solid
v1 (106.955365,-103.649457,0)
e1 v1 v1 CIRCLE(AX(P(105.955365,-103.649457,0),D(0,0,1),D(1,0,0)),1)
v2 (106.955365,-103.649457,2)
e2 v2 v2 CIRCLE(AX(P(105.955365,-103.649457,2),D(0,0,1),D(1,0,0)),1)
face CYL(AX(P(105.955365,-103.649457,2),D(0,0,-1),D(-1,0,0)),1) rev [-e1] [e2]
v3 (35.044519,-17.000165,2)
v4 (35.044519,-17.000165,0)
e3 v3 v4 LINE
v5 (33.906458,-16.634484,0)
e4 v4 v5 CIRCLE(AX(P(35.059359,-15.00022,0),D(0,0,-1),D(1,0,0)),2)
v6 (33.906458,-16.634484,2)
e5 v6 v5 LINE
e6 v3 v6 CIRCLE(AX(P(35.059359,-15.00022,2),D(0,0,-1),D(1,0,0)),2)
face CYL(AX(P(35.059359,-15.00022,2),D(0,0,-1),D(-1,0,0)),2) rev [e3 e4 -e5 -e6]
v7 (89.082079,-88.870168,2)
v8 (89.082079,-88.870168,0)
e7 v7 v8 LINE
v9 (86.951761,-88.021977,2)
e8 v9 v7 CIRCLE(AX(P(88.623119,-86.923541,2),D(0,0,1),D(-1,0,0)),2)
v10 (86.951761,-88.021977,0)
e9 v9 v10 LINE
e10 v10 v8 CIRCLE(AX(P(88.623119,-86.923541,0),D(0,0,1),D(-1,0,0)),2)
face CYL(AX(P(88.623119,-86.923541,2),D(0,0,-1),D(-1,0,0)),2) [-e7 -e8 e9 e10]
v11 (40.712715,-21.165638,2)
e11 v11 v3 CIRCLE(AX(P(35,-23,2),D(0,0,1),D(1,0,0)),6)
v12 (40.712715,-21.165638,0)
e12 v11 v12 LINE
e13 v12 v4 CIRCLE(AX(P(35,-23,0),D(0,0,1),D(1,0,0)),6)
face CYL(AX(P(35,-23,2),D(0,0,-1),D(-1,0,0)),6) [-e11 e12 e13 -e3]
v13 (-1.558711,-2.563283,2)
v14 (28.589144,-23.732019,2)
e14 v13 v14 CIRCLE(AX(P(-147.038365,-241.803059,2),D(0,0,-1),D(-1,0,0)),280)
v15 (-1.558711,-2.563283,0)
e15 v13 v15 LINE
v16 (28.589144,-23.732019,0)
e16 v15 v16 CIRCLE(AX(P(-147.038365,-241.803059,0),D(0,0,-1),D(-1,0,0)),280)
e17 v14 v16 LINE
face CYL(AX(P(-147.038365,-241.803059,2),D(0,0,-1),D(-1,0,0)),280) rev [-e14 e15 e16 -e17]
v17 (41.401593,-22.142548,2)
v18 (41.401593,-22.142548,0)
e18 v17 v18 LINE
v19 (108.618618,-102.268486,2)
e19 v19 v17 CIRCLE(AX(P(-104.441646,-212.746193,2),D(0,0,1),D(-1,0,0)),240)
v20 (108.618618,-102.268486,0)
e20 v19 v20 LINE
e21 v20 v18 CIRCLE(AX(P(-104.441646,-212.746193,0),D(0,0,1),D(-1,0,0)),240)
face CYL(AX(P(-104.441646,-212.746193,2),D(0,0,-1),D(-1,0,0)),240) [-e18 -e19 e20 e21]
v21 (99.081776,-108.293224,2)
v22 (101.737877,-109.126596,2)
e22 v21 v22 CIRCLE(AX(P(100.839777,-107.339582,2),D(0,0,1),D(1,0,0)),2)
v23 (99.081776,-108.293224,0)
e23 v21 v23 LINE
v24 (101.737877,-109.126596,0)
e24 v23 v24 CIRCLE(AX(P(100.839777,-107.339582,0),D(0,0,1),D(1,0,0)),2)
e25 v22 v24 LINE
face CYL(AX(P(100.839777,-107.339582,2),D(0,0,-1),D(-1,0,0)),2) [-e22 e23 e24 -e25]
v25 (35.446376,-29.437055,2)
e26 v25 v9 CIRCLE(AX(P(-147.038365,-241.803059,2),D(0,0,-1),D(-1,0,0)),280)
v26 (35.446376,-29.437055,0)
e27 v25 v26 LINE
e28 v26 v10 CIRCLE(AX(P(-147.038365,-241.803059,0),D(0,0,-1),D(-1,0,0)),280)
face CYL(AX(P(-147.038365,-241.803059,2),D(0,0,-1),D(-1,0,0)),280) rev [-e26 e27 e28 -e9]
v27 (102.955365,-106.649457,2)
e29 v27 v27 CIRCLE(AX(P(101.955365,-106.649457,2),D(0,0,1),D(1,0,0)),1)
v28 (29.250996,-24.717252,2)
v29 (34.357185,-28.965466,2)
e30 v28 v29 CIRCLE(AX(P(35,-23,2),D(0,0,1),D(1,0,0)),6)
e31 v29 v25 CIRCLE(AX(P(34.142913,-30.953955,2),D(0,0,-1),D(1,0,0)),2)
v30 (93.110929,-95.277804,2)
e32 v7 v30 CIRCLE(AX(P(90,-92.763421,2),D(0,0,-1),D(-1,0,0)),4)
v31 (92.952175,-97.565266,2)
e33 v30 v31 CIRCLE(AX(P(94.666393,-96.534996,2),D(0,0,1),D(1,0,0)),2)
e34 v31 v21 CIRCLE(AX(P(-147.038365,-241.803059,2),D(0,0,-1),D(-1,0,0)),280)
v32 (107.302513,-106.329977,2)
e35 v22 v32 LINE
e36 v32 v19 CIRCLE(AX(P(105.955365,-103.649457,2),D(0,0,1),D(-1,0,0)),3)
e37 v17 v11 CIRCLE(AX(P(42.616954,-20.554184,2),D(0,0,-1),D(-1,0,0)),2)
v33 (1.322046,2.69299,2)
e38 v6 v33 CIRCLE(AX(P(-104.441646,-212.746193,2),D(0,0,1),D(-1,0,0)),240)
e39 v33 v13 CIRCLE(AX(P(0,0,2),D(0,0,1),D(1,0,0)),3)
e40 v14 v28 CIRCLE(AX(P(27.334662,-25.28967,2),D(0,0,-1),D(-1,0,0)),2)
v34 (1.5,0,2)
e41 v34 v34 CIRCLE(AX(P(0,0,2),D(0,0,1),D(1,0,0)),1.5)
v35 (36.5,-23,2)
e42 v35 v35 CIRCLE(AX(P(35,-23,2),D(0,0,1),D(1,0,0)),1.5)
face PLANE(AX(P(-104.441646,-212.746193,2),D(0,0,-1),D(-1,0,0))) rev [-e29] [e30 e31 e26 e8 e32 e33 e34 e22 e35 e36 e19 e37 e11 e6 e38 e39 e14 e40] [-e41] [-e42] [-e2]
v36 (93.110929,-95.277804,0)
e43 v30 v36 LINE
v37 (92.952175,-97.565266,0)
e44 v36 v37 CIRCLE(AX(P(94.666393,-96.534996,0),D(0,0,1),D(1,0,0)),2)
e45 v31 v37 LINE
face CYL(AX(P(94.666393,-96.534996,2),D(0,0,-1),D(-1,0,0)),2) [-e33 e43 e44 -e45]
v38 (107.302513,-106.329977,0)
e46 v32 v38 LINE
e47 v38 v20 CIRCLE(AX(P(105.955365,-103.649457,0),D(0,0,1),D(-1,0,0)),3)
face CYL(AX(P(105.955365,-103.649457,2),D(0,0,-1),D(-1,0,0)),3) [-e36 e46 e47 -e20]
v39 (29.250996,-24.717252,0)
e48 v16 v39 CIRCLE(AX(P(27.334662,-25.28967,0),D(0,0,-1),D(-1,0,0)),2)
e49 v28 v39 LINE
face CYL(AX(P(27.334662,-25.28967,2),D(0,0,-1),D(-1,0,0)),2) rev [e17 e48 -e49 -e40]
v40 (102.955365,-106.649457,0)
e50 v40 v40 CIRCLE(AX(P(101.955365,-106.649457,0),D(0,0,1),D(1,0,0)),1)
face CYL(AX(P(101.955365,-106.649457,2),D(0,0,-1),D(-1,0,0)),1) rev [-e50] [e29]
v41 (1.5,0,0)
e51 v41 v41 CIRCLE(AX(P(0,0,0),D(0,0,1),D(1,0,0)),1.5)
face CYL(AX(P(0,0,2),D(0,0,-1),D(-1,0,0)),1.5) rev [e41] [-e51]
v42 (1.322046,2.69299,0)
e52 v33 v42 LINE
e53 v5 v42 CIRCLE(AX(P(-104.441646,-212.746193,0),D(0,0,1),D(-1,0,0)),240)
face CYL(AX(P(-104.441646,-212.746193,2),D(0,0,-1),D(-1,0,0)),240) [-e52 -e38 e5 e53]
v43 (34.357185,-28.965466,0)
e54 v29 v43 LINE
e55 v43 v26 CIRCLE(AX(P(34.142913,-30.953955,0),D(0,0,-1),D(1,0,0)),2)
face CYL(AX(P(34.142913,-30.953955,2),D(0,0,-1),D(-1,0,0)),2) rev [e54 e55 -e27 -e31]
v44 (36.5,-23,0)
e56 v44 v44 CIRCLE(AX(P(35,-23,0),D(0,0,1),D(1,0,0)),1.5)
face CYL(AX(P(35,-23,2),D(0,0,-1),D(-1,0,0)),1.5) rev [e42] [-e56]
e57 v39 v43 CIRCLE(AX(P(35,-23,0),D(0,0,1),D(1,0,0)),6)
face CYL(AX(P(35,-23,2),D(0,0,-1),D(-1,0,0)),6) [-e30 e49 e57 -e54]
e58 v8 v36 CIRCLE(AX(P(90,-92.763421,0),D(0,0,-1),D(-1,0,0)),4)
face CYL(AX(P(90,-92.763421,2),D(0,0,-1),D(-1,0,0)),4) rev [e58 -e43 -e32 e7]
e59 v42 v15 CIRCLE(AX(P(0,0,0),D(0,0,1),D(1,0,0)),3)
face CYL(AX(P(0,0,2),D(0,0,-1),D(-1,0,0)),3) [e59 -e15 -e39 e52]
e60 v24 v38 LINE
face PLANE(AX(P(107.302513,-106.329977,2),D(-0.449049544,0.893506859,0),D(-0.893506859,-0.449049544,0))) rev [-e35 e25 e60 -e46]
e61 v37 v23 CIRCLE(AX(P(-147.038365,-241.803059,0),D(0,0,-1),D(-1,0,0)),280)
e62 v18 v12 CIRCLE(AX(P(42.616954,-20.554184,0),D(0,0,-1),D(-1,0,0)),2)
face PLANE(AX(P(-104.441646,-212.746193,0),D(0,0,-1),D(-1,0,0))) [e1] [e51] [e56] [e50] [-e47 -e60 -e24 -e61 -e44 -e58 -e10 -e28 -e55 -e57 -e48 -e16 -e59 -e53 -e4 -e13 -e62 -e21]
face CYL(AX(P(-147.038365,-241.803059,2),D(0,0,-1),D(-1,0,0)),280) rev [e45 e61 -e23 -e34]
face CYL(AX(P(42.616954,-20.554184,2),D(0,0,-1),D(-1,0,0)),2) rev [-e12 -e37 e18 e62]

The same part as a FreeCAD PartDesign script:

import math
import FreeCAD as App
import Part
import Sketcher

V = App.Vector

doc = App.newDocument("Part")
params = doc.addObject("Spreadsheet::Sheet", "Params")
for row, (alias, value) in enumerate([
    ("sketch1_diameter", "2 mm"),
    ("sketch1_diameter2", "3 mm"),
    ("sketch1_radius", "3 mm"),
    ("sketch1_radius2", "240 mm"),
    ("sketch1_radius3", "2 mm"),
    ("pad1_length", "2 mm"),
], start=1):
    params.set(f"A{row}", alias)
    params.set(f"B{row}", "=" + value)
    params.setAlias(f"B{row}", alias)

body = doc.addObject("PartDesign::Body", "Body")

# Sketch on XY plane
sketch1 = doc.addObject("Sketcher::SketchObject", "Sketch")
body.addObject(sketch1)
sketch1.AttachmentSupport = (doc.XY_Plane, [""])
sketch1.MapMode = "FlatFace"
sketch1.addGeometry([
    Part.LineSegment(V(101.7, -109.1, 0), V(107.3, -106.3, 0)),  # 0
    Part.ArcOfCircle(Part.Circle(V(106, -103.6, 0), V(0, 0, 1), 3), math.radians(-63), math.radians(27)),  # 1
    Part.ArcOfCircle(Part.Circle(V(-104.4, -212.7, 0), V(0, 0, 1), 240), math.radians(27), math.radians(53)),  # 2
    Part.ArcOfCircle(Part.Circle(V(42.6, -20.6, 0), V(0, 0, 1), 2), math.radians(-162), math.radians(-127)),  # 3
    Part.ArcOfCircle(Part.Circle(V(35, -23, 0), V(0, 0, 1), 6), math.radians(18), math.radians(90)),  # 4
    Part.ArcOfCircle(Part.Circle(V(35.1, -15, 0), V(0, 0, 1), 2), math.radians(-125), math.radians(-90)),  # 5
    Part.ArcOfCircle(Part.Circle(V(-104.4, -212.7, 0), V(0, 0, 1), 240), math.radians(54.8), math.radians(63.85)),  # 6
    Part.ArcOfCircle(Part.Circle(V(0, 0, 0), V(0, 0, 1), 3), math.radians(64), math.radians(239)),  # 7
    Part.ArcOfCircle(Part.Circle(V(-147, -241.8, 0), V(0, 0, 1), 280), math.radians(51.15), math.radians(58.7)),  # 8
    Part.ArcOfCircle(Part.Circle(V(27.3, -25.3, 0), V(0, 0, 1), 2), math.radians(17), math.radians(51)),  # 9
    Part.ArcOfCircle(Part.Circle(V(35, -23, 0), V(0, 0, 1), 6), math.radians(-163), math.radians(-96)),  # 10
    Part.ArcOfCircle(Part.Circle(V(34.1, -31, 0), V(0, 0, 1), 2), math.radians(49), math.radians(84)),  # 11
    Part.ArcOfCircle(Part.Circle(V(-147, -241.8, 0), V(0, 0, 1), 280), math.radians(33.31), math.radians(49.33)),  # 12
    Part.ArcOfCircle(Part.Circle(V(88.6, -86.9, 0), V(0, 0, 1), 2), math.radians(-147), math.radians(-77)),  # 13
    Part.ArcOfCircle(Part.Circle(V(90, -92.8, 0), V(0, 0, 1), 4), math.radians(-39), math.radians(103)),  # 14
    Part.ArcOfCircle(Part.Circle(V(94.7, -96.5, 0), V(0, 0, 1), 2), math.radians(141), math.radians(211)),  # 15
    Part.ArcOfCircle(Part.Circle(V(-147, -241.8, 0), V(0, 0, 1), 280), math.radians(28.48), math.radians(31.01)),  # 16
    Part.ArcOfCircle(Part.Circle(V(100.8, -107.3, 0), V(0, 0, 1), 2), math.radians(-152), math.radians(-63)),  # 17
    Part.Circle(V(102, -106.6, 0), V(0, 0, 1), 1),  # 18
    Part.Circle(V(106, -103.6, 0), V(0, 0, 1), 1),  # 19
    Part.Circle(V(35, -23, 0), V(0, 0, 1), 1.5),  # 20
    Part.Circle(V(0, 0, 0), V(0, 0, 1), 1.5),  # 21
], False)
sketch1.addConstraint([
    Sketcher.Constraint("Tangent", 0, 2, 1, 1),
    Sketcher.Constraint("Tangent", 1, 2, 2, 1),
    Sketcher.Constraint("Tangent", 2, 2, 3, 2),
    Sketcher.Constraint("Tangent", 3, 1, 4, 1),
    Sketcher.Constraint("Tangent", 4, 2, 5, 2),
    Sketcher.Constraint("Tangent", 5, 1, 6, 1),
    Sketcher.Constraint("Tangent", 6, 2, 7, 1),
    Sketcher.Constraint("Tangent", 7, 2, 8, 2),
    Sketcher.Constraint("Tangent", 8, 1, 9, 2),
    Sketcher.Constraint("Tangent", 9, 1, 10, 1),
    Sketcher.Constraint("Tangent", 10, 2, 11, 2),
    Sketcher.Constraint("Tangent", 11, 1, 12, 2),
    Sketcher.Constraint("Tangent", 12, 1, 13, 1),
    Sketcher.Constraint("Tangent", 13, 2, 14, 2),
    Sketcher.Constraint("Tangent", 14, 1, 15, 1),
    Sketcher.Constraint("Tangent", 15, 2, 16, 2),
    Sketcher.Constraint("Tangent", 16, 1, 17, 1),
    Sketcher.Constraint("Tangent", 17, 2, 0, 1),
    Sketcher.Constraint("Coincident", 7, 3, -1, 1),
    Sketcher.Constraint("Coincident", 21, 3, -1, 1),
    Sketcher.Constraint("Coincident", 6, 3, 2, 3),
    Sketcher.Constraint("Coincident", 10, 3, 4, 3),
    Sketcher.Constraint("Coincident", 12, 3, 8, 3),
    Sketcher.Constraint("Coincident", 16, 3, 8, 3),
    Sketcher.Constraint("Coincident", 19, 3, 1, 3),
    Sketcher.Constraint("Coincident", 20, 3, 4, 3),
    Sketcher.Constraint("Equal", 3, 5),
    Sketcher.Constraint("Equal", 2, 6),
    Sketcher.Constraint("Equal", 1, 7),
    Sketcher.Constraint("Equal", 5, 9),
    Sketcher.Constraint("Equal", 4, 10),
    Sketcher.Constraint("Equal", 9, 11),
    Sketcher.Constraint("Equal", 8, 12),
    Sketcher.Constraint("Equal", 11, 13),
    Sketcher.Constraint("Equal", 13, 15),
    Sketcher.Constraint("Equal", 15, 17),
    Sketcher.Constraint("Equal", 18, 19),
    Sketcher.Constraint("Equal", 20, 21),
    Sketcher.Constraint("Diameter", 18, 2.0),
    Sketcher.Constraint("Diameter", 20, 3.0),
    Sketcher.Constraint("Radius", 1, 3.0),
    Sketcher.Constraint("Radius", 2, 240.0),
    Sketcher.Constraint("Radius", 3, 2.0),
    Sketcher.Constraint("Radius", 4, 6.0),
    Sketcher.Constraint("Radius", 8, 280.0),
    Sketcher.Constraint("Radius", 14, 4.0),
    Sketcher.Constraint("DistanceX", -1, 1, 4, 3, 35.0),
    Sketcher.Constraint("DistanceY", 4, 3, -1, 1, 23.0),
    Sketcher.Constraint("DistanceX", -1, 1, 14, 3, 90.0),
    Sketcher.Constraint("DistanceX", 18, 3, 1, 3, 4.0),
    Sketcher.Constraint("DistanceY", 18, 3, 1, 3, 3.0),
    Sketcher.Constraint("Radius", 16, 279.999997),
    Sketcher.Constraint("DistanceX", 2, 3, 3, 3, 147.0586),
    Sketcher.Constraint("DistanceY", 8, 3, 1, 3, 138.153602),
    Sketcher.Constraint("DistanceX", 13, 2, 17, 3, 11.757698),
    Sketcher.Constraint("DistanceY", 15, 2, 13, 2, 8.695098),
    Sketcher.Constraint("DistanceX", 17, 3, 17, 2, 0.898099),
])
sketch1.setExpression("Constraints[38]", "Params.sketch1_diameter")
sketch1.setExpression("Constraints[39]", "Params.sketch1_diameter2")
sketch1.setExpression("Constraints[40]", "Params.sketch1_radius")
sketch1.setExpression("Constraints[41]", "Params.sketch1_radius2")
sketch1.setExpression("Constraints[42]", "Params.sketch1_radius3")
pad1 = doc.addObject("PartDesign::Pad", "Pad")
body.addObject(pad1)
pad1.Profile = sketch1
pad1.setExpression("Length", "Params.pad1_length")

doc.recompute()
